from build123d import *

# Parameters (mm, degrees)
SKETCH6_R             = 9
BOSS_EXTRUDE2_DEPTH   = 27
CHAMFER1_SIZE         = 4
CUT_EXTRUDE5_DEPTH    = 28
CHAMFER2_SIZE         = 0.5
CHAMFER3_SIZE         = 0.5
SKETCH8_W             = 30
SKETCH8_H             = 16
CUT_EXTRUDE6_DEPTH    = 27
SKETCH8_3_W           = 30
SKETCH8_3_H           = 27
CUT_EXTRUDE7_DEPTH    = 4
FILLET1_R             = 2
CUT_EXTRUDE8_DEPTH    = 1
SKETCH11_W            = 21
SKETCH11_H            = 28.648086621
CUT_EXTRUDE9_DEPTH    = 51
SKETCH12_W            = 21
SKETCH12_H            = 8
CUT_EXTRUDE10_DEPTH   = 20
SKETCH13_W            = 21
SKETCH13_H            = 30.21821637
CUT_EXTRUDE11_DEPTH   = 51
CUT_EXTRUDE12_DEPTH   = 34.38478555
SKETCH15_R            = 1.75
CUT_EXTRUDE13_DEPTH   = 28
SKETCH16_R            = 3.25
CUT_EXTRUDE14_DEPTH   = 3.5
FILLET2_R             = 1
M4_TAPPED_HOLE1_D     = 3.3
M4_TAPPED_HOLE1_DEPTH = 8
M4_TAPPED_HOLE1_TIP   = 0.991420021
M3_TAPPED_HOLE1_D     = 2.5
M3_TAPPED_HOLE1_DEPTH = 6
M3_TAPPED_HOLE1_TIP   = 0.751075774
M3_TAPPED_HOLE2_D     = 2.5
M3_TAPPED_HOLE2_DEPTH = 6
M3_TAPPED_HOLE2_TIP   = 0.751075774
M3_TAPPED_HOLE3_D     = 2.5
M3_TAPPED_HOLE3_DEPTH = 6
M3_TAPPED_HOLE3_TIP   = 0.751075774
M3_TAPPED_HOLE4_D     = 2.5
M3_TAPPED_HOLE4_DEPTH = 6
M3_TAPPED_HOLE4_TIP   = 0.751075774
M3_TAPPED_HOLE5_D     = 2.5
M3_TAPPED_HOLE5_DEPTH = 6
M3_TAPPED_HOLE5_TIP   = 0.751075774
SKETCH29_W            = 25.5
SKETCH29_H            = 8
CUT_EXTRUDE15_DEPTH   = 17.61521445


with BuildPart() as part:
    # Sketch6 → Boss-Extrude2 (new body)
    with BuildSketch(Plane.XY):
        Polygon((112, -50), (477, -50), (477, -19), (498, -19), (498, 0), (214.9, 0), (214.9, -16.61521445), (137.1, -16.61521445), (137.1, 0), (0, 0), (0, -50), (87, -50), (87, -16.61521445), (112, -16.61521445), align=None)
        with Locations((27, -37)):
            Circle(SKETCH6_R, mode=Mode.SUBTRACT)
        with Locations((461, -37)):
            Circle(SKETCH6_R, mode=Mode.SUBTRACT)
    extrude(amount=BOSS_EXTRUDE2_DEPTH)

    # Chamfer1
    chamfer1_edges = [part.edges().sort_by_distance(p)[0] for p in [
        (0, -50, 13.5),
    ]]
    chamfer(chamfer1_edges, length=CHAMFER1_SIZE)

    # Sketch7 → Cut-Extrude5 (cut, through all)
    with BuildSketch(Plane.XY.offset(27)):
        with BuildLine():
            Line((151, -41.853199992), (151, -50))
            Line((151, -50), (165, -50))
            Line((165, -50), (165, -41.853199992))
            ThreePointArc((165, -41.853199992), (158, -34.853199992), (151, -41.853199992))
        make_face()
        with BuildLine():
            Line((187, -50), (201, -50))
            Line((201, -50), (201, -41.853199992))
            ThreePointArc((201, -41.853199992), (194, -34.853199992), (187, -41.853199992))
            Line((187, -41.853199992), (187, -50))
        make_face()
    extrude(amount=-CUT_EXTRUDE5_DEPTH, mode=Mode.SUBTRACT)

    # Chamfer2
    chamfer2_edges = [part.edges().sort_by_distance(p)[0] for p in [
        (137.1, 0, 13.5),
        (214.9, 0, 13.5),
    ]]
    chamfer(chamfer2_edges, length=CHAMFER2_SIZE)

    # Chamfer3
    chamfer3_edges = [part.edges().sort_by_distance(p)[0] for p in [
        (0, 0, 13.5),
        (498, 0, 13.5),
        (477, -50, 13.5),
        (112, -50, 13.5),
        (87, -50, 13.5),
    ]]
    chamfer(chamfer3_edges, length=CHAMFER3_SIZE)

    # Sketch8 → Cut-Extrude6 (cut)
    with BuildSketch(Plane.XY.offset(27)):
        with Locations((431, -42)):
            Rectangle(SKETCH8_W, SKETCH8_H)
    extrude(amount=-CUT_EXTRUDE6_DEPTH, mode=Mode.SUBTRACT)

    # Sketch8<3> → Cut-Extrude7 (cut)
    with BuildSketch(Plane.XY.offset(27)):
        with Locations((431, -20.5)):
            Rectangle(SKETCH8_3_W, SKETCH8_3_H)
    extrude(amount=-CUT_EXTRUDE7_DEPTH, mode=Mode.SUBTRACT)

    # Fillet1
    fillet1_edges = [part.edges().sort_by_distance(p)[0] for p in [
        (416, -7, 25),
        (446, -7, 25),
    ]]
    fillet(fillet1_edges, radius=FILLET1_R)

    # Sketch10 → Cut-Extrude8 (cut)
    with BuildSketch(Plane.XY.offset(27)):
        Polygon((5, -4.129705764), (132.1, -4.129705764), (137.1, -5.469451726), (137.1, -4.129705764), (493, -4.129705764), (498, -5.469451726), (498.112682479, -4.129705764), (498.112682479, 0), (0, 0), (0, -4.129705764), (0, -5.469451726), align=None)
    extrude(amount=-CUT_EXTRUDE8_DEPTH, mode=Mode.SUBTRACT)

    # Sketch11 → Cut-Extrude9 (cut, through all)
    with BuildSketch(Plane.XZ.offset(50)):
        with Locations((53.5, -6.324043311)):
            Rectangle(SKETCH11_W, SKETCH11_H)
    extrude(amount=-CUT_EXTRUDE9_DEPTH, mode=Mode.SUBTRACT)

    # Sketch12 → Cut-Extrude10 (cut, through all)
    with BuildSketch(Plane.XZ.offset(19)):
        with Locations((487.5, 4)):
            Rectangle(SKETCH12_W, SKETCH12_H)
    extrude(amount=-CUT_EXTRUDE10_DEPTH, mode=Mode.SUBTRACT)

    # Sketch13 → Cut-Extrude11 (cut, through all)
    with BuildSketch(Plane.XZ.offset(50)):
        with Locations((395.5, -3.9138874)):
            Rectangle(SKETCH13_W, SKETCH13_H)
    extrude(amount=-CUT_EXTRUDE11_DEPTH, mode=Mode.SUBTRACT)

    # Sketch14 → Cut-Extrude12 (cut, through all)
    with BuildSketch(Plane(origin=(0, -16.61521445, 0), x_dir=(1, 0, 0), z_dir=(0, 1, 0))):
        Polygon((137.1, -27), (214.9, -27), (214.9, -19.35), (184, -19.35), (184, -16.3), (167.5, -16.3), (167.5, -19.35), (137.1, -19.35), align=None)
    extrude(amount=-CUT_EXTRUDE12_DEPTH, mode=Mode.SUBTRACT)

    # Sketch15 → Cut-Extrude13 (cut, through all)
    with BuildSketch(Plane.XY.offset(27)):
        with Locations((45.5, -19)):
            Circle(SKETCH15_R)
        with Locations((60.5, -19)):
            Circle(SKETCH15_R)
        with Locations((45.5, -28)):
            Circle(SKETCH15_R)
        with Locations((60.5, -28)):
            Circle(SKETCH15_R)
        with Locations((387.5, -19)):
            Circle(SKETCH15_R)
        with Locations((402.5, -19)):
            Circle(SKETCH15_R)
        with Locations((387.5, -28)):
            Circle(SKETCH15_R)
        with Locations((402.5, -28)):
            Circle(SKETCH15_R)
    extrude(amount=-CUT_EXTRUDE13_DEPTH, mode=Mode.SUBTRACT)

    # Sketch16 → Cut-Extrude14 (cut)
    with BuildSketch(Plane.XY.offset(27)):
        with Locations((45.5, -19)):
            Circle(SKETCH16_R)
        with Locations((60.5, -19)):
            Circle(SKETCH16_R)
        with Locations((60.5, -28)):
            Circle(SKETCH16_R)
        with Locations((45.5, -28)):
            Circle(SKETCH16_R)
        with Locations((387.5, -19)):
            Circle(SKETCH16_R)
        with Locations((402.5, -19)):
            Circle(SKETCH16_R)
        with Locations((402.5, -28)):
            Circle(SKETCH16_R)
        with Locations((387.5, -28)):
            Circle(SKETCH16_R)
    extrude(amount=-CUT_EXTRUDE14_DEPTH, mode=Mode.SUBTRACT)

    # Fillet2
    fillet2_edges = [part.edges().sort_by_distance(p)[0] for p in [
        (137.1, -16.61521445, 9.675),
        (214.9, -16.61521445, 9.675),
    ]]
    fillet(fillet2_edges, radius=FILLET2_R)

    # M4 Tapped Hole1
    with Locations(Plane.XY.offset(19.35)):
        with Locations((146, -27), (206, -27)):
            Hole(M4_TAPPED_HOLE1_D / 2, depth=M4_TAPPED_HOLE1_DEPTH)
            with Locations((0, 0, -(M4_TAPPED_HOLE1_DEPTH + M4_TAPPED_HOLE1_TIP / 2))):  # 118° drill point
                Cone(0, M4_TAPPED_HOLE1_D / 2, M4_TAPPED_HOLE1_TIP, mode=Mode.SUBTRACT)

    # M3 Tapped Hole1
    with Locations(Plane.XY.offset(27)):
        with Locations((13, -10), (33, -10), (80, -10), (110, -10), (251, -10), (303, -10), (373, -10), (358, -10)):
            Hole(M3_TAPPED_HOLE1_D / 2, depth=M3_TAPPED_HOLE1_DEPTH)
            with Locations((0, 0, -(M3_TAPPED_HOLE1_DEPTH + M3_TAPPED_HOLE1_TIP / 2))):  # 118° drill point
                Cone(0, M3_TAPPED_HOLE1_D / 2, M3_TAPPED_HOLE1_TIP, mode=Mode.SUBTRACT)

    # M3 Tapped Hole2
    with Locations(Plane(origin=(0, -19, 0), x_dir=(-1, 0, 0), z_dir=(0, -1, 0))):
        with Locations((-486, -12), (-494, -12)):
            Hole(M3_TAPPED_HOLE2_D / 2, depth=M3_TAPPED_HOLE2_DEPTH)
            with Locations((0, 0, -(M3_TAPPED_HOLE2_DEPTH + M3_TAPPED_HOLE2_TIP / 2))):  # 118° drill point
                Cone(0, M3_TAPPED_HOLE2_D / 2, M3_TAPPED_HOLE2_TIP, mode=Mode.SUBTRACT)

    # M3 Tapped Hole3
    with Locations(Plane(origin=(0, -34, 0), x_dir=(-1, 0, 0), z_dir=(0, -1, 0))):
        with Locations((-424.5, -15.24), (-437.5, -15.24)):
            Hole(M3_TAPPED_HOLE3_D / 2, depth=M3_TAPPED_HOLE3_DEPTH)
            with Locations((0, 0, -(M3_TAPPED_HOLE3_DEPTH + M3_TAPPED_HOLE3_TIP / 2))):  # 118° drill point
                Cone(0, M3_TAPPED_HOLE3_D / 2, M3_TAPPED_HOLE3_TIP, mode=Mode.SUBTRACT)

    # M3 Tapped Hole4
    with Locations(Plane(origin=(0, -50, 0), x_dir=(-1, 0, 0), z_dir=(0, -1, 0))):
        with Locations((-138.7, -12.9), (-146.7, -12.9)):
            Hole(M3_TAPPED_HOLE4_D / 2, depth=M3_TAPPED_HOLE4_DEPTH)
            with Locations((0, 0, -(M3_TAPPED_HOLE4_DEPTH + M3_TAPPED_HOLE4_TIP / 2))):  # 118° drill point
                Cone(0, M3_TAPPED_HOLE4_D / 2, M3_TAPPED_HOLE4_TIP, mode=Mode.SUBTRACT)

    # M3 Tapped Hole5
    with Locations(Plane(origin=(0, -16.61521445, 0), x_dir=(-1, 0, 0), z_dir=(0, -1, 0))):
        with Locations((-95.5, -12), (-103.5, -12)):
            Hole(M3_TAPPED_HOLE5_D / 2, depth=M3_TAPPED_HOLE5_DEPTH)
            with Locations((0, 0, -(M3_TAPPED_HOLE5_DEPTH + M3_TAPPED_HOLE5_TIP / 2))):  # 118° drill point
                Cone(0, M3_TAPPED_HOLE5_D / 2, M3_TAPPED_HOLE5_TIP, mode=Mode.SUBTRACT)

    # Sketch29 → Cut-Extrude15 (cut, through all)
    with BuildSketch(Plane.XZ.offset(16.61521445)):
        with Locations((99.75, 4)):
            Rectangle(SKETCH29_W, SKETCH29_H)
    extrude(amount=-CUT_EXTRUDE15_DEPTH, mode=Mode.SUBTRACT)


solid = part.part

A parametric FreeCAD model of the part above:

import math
import FreeCAD as App
import Part
import Sketcher
from FreeCAD import Vector
Q = App.Units.Quantity


def edges_at(feature, points):
    """Names of the edges that pass closest to the given points."""
    edges = feature.Shape.Edges
    near = lambda p: min(range(len(edges)), key=lambda i: edges[i].distToShape(Part.Vertex(*p))[0])
    return sorted({f"Edge{near(p) + 1}" for p in points})


def add_polygon(sketch, points):
    """Adds a closed chain of lines whose ends are joined by coincident constraints."""
    first, n = sketch.GeometryCount, len(points)
    for a, b in zip(points, points[1:] + points[:1]):
        sketch.addGeometry(Part.LineSegment(App.Vector(*a, 0), App.Vector(*b, 0)), False)
    for i in range(n):
        sketch.addConstraint(Sketcher.Constraint("Coincident", first + i, 2, first + (i + 1) % n, 1))

doc = App.newDocument("Part")
body = doc.addObject("PartDesign::Body", "Body")

sketch1 = body.newObject("Sketcher::SketchObject", "Sketch")
sketch1.AttachmentSupport = (doc.getObject("XY_Plane"), [""])
sketch1.MapMode = "FlatFace"
add_polygon(sketch1, [(112, -50), (477, -50), (477, -19), (498, -19), (498, 0), (215, 0), (215, -17), (137, -17), (137, 0), (0, 0), (0, -50), (87, -50), (87, -17), (112, -17)])
sketch1.addGeometry(Part.Circle(Vector(27, -37, 0), Vector(0, 0, 1), 9), False)
sketch1.addGeometry(Part.Circle(Vector(461, -37, 0), Vector(0, 0, 1), 9), False)
sketch1.addConstraint(Sketcher.Constraint("Horizontal", 0))
sketch1.addConstraint(Sketcher.Constraint("Vertical", 1))
sketch1.addConstraint(Sketcher.Constraint("Horizontal", 2))
sketch1.addConstraint(Sketcher.Constraint("Vertical", 3))
sketch1.addConstraint(Sketcher.Constraint("Horizontal", 4))
sketch1.addConstraint(Sketcher.Constraint("Vertical", 5))
sketch1.addConstraint(Sketcher.Constraint("Horizontal", 6))
sketch1.addConstraint(Sketcher.Constraint("Vertical", 7))
sketch1.addConstraint(Sketcher.Constraint("Horizontal", 8))
sketch1.addConstraint(Sketcher.Constraint("Vertical", 9))
sketch1.addConstraint(Sketcher.Constraint("Horizontal", 10))
sketch1.addConstraint(Sketcher.Constraint("Vertical", 11))
sketch1.addConstraint(Sketcher.Constraint("Horizontal", 12))
sketch1.addConstraint(Sketcher.Constraint("Vertical", 13))
sketch1.addConstraint(Sketcher.Constraint("Coincident", 8, 2, -1, 1))
sketch1.addConstraint(Sketcher.Constraint("Equal", 14, 15))
sketch1.addConstraint(Sketcher.Constraint("PointOnObject", 3, 2, -1))
sketch1.addConstraint(Sketcher.Constraint("Horizontal", 14, 3, 15, 3))
sketch1.addConstraint(Sketcher.Constraint("Horizontal", 0, 2, 9, 2))
sketch1.addConstraint(Sketcher.Constraint("Horizontal", 6, 2, 11, 2))
sketch1.addConstraint(Sketcher.Constraint("Diameter", 14, Q("18 mm")))
sketch1.addConstraint(Sketcher.Constraint("DistanceX", 0, 1, 0, 2, Q("365 mm")))
sketch1.addConstraint(Sketcher.Constraint("DistanceX", 2, 1, 2, 2, Q("21 mm")))
sketch1.addConstraint(Sketcher.Constraint("DistanceX", 10, 1, 10, 2, Q("87 mm")))
sketch1.addConstraint(Sketcher.Constraint("DistanceX", 12, 1, 12, 2, Q("25 mm")))
sketch1.addConstraint(Sketcher.Constraint("DistanceY", 1, 1, 1, 2, Q("31 mm")))
sketch1.addConstraint(Sketcher.Constraint("DistanceY", 3, 1, 3, 2, Q("19 mm")))
sketch1.addConstraint(Sketcher.Constraint("DistanceX", 4, 2, 4, 1, Q("283.1 mm")))
sketch1.addConstraint(Sketcher.Constraint("DistanceX", 6, 2, 6, 1, Q("77.8 mm")))
sketch1.addConstraint(Sketcher.Constraint("DistanceX", -1, 1, 14, 3, Q("27 mm")))
sketch1.addConstraint(Sketcher.Constraint("DistanceY", 14, 3, -1, 1, Q("37 mm")))
sketch1.addConstraint(Sketcher.Constraint("DistanceX", -1, 1, 15, 3, Q("461 mm")))
sketch1.addConstraint(Sketcher.Constraint("DistanceY", 5, 2, 5, 1, Q("16.615214 mm")))
pad1 = body.newObject("PartDesign::Pad", "Pad")
pad1.Profile = sketch1
pad1.Length = 27
doc.recompute()

chamfer = body.newObject("PartDesign::Chamfer", "Chamfer")
chamfer.Base = (pad1, edges_at(pad1, [(0, -50, 13.5)]))
chamfer.Size = 4

sketch2 = body.newObject("Sketcher::SketchObject", "Sketch001")
sketch2.AttachmentSupport = (doc.getObject("XY_Plane"), [""])
sketch2.MapMode = "FlatFace"
sketch2.AttachmentOffset = App.Placement(Vector(0, 0, 27), App.Rotation())
sketch2.addGeometry(Part.LineSegment(Vector(151, -42, 0), Vector(151, -50, 0)), False)
sketch2.addGeometry(Part.LineSegment(Vector(151, -50, 0), Vector(165, -50, 0)), False)
sketch2.addGeometry(Part.LineSegment(Vector(165, -50, 0), Vector(165, -42, 0)), False)
sketch2.addGeometry(Part.ArcOfCircle(Part.Circle(Vector(158, -42, 0), Vector(0, 0, 1), 7), math.radians(0), math.radians(180)), False)
sketch2.addGeometry(Part.LineSegment(Vector(187, -50, 0), Vector(201, -50, 0)), False)
sketch2.addGeometry(Part.LineSegment(Vector(201, -50, 0), Vector(201, -42, 0)), False)
sketch2.addGeometry(Part.ArcOfCircle(Part.Circle(Vector(194, -42, 0), Vector(0, 0, 1), 7), math.radians(0), math.radians(180)), False)
sketch2.addGeometry(Part.LineSegment(Vector(187, -42, 0), Vector(187, -50, 0)), False)
sketch2.addConstraint(Sketcher.Constraint("Coincident", 0, 2, 1, 1))
sketch2.addConstraint(Sketcher.Constraint("Coincident", 1, 2, 2, 1))
sketch2.addConstraint(Sketcher.Constraint("Tangent", 2, 2, 3, 1))
sketch2.addConstraint(Sketcher.Constraint("Tangent", 3, 2, 0, 1))
sketch2.addConstraint(Sketcher.Constraint("Coincident", 4, 2, 5, 1))
sketch2.addConstraint(Sketcher.Constraint("Tangent", 5, 2, 6, 1))
sketch2.addConstraint(Sketcher.Constraint("Tangent", 6, 2, 7, 1))
sketch2.addConstraint(Sketcher.Constraint("Coincident", 7, 2, 4, 1))
sketch2.addConstraint(Sketcher.Constraint("Vertical", 0))
sketch2.addConstraint(Sketcher.Constraint("Horizontal", 1))
sketch2.addConstraint(Sketcher.Constraint("Vertical", 2))
sketch2.addConstraint(Sketcher.Constraint("Horizontal", 4))
sketch2.addConstraint(Sketcher.Constraint("Vertical", 5))
sketch2.addConstraint(Sketcher.Constraint("Vertical", 7))
sketch2.addConstraint(Sketcher.Constraint("Equal", 3, 6))
sketch2.addConstraint(Sketcher.Constraint("Horizontal", 3, 3, 6, 3))
sketch2.addConstraint(Sketcher.Constraint("Horizontal", 1, 2, 4, 2))
sketch2.addConstraint(Sketcher.Constraint("Radius", 3, Q("7 mm")))
sketch2.addConstraint(Sketcher.Constraint("DistanceX", -1, 1, 3, 3, Q("158 mm")))
sketch2.addConstraint(Sketcher.Constraint("DistanceX", -1, 1, 6, 3, Q("194 mm")))
sketch2.addConstraint(Sketcher.Constraint("DistanceY", 0, 2, -1, 1, Q("50 mm")))
sketch2.addConstraint(Sketcher.Constraint("DistanceY", 0, 2, 0, 1, Q("8.1468 mm")))
pocket1 = body.newObject("PartDesign::Pocket", "Pocket")
pocket1.Profile = sketch2
pocket1.Type = "ThroughAll"
doc.recompute()

chamfer2 = body.newObject("PartDesign::Chamfer", "Chamfer001")
chamfer2.Base = (pocket1, edges_at(pocket1, [(137.1, 0, 13.5), (214.9, 0, 13.5)]))
chamfer2.Size = 0.5
doc.recompute()

chamfer3 = body.newObject("PartDesign::Chamfer", "Chamfer002")
chamfer3.Base = (chamfer2, edges_at(chamfer2, [
    (0, 0, 13.5),
    (498, 0, 13.5),
    (477, -50, 13.5),
    (112, -50, 13.5),
    (87, -50, 13.5),
]))
chamfer3.Size = 0.5

sketch3 = body.newObject("Sketcher::SketchObject", "Sketch002")
sketch3.AttachmentSupport = (doc.getObject("XY_Plane"), [""])
sketch3.MapMode = "FlatFace"
sketch3.AttachmentOffset = App.Placement(Vector(0, 0, 27), App.Rotation())
add_polygon(sketch3, [(416, -34), (416, -50), (446, -50), (446, -34)])
sketch3.addConstraint(Sketcher.Constraint("Vertical", 0))
sketch3.addConstraint(Sketcher.Constraint("Horizontal", 1))
sketch3.addConstraint(Sketcher.Constraint("Vertical", 2))
sketch3.addConstraint(Sketcher.Constraint("Horizontal", 3))
sketch3.addConstraint(Sketcher.Constraint("DistanceX", 1, 1, 1, 2, Q("30 mm")))
sketch3.addConstraint(Sketcher.Constraint("DistanceY", 0, 2, 0, 1, Q("16 mm")))
sketch3.addConstraint(Sketcher.Constraint("DistanceX", -1, 1, 0, 2, Q("416 mm")))
sketch3.addConstraint(Sketcher.Constraint("DistanceY", 0, 2, -1, 1, Q("50 mm")))
pocket2 = body.newObject("PartDesign::Pocket", "Pocket001")
pocket2.Profile = sketch3
pocket2.Length = 27

sketch4 = body.newObject("Sketcher::SketchObject", "Sketch003")
sketch4.AttachmentSupport = (doc.getObject("XY_Plane"), [""])
sketch4.MapMode = "FlatFace"
sketch4.AttachmentOffset = App.Placement(Vector(0, 0, 27), App.Rotation())
add_polygon(sketch4, [(416, -7), (416, -34), (446, -34), (446, -7)])
sketch4.addConstraint(Sketcher.Constraint("Vertical", 0))
sketch4.addConstraint(Sketcher.Constraint("Horizontal", 1))
sketch4.addConstraint(Sketcher.Constraint("Vertical", 2))
sketch4.addConstraint(Sketcher.Constraint("Horizontal", 3))
sketch4.addConstraint(Sketcher.Constraint("DistanceX", 1, 1, 1, 2, Q("30 mm")))
sketch4.addConstraint(Sketcher.Constraint("DistanceY", 0, 2, 0, 1, Q("27 mm")))
sketch4.addConstraint(Sketcher.Constraint("DistanceX", -1, 1, 0, 2, Q("416 mm")))
sketch4.addConstraint(Sketcher.Constraint("DistanceY", 0, 2, -1, 1, Q("34 mm")))
pocket3 = body.newObject("PartDesign::Pocket", "Pocket002")
pocket3.Profile = sketch4
pocket3.Length = 4
doc.recompute()

fillet = body.newObject("PartDesign::Fillet", "Fillet")
fillet.Base = (pocket3, edges_at(pocket3, [(416, -7, 25), (446, -7, 25)]))
fillet.Radius = 2

sketch5 = body.newObject("Sketcher::SketchObject", "Sketch004")
sketch5.AttachmentSupport = (doc.getObject("XY_Plane"), [""])
sketch5.MapMode = "FlatFace"
sketch5.AttachmentOffset = App.Placement(Vector(0, 0, 27), App.Rotation())
add_polygon(sketch5, [(5, -4.1), (132.1, -4.1), (137.1, -5.5), (137.1, -4.1), (493, -4.1), (498, -5.5), (498.1, -4.1), (498.1, 0), (0, 0), (0, -5.5)])
sketch5.addConstraint(Sketcher.Constraint("Horizontal", 0))
sketch5.addConstraint(Sketcher.Constraint("Vertical", 2))
sketch5.addConstraint(Sketcher.Constraint("Horizontal", 3))
sketch5.addConstraint(Sketcher.Constraint("Vertical", 6))
sketch5.addConstraint(Sketcher.Constraint("Horizontal", 7))
sketch5.addConstraint(Sketcher.Constraint("Vertical", 8))
sketch5.addConstraint(Sketcher.Constraint("Coincident", 7, 2, -1, 1))
sketch5.addConstraint(Sketcher.Constraint("Parallel", 1, 4))
sketch5.addConstraint(Sketcher.Constraint("Horizontal", 0, 2, 2, 2))
sketch5.addConstraint(Sketcher.Constraint("Horizontal", 1, 2, 4, 2))
sketch5.addConstraint(Sketcher.Constraint("Horizontal", 3, 2, 5, 2))
sketch5.addConstraint(Sketcher.Constraint("Horizontal", 4, 2, 8, 2))
sketch5.addConstraint(Sketcher.Constraint("Equal", 4, 9))
sketch5.addConstraint(Sketcher.Constraint("Angle", 1, Q("-15 deg")))
sketch5.addConstraint(Sketcher.Constraint("DistanceX", 0, 1, 0, 2, Q("127.1 mm")))
sketch5.addConstraint(Sketcher.Constraint("DistanceX", 3, 1, 3, 2, Q("355.9 mm")))
sketch5.addConstraint(Sketcher.Constraint("DistanceX", -1, 1, 3, 2, Q("493 mm")))
sketch5.addConstraint(Sketcher.Constraint("DistanceY", 8, 2, 8, 1, Q("5.469452 mm")))
sketch5.addConstraint(Sketcher.Constraint("DistanceX", 7, 2, 7, 1, Q("498.112682 mm")))
pocket4 = body.newObject("PartDesign::Pocket", "Pocket003")
pocket4.Profile = sketch5
pocket4.Length = 1

sketch6 = body.newObject("Sketcher::SketchObject", "Sketch005")
sketch6.AttachmentSupport = (doc.getObject("XZ_Plane"), [""])
sketch6.MapMode = "FlatFace"
sketch6.AttachmentOffset = App.Placement(Vector(0, 0, 50), App.Rotation())
add_polygon(sketch6, [(43, 8), (43, -21), (64, -21), (64, 8)])
sketch6.addConstraint(Sketcher.Constraint("Vertical", 0))
sketch6.addConstraint(Sketcher.Constraint("Horizontal", 1))
sketch6.addConstraint(Sketcher.Constraint("Vertical", 2))
sketch6.addConstraint(Sketcher.Constraint("Horizontal", 3))
sketch6.addConstraint(Sketcher.Constraint("DistanceX", 1, 1, 1, 2, Q("21 mm")))
sketch6.addConstraint(Sketcher.Constraint("DistanceX", -1, 1, 0, 2, Q("43 mm")))
sketch6.addConstraint(Sketcher.Constraint("DistanceY", -1, 1, 2, 2, Q("8 mm")))
sketch6.addConstraint(Sketcher.Constraint("DistanceY", 0, 2, 0, 1, Q("28.648087 mm")))
pocket5 = body.newObject("PartDesign::Pocket", "Pocket004")
pocket5.Profile = sketch6
pocket5.Type = "ThroughAll"

sketch7 = body.newObject("Sketcher::SketchObject", "Sketch006")
sketch7.AttachmentSupport = (doc.getObject("XZ_Plane"), [""])
sketch7.MapMode = "FlatFace"
sketch7.AttachmentOffset = App.Placement(Vector(0, 0, 19), App.Rotation())
add_polygon(sketch7, [(477, 8), (477, 0), (498, 0), (498, 8)])
sketch7.addConstraint(Sketcher.Constraint("Vertical", 0))
sketch7.addConstraint(Sketcher.Constraint("Horizontal", 1))
sketch7.addConstraint(Sketcher.Constraint("Vertical", 2))
sketch7.addConstraint(Sketcher.Constraint("Horizontal", 3))
sketch7.addConstraint(Sketcher.Constraint("PointOnObject", 0, 2, -1))
sketch7.addConstraint(Sketcher.Constraint("DistanceX", 1, 1, 1, 2, Q("21 mm")))
sketch7.addConstraint(Sketcher.Constraint("DistanceY", 0, 2, 0, 1, Q("8 mm")))
sketch7.addConstraint(Sketcher.Constraint("DistanceX", -1, 1, 0, 2, Q("477 mm")))
pocket6 = body.newObject("PartDesign::Pocket", "Pocket005")
pocket6.Profile = sketch7
pocket6.Type = "ThroughAll"

sketch8 = body.newObject("Sketcher::SketchObject", "Sketch007")
sketch8.AttachmentSupport = (doc.getObject("XZ_Plane"), [""])
sketch8.MapMode = "FlatFace"
sketch8.AttachmentOffset = App.Placement(Vector(0, 0, 50), App.Rotation())
add_polygon(sketch8, [(385, 11), (385, -19), (406, -19), (406, 11)])
sketch8.addConstraint(Sketcher.Constraint("Vertical", 0))
sketch8.addConstraint(Sketcher.Constraint("Horizontal", 1))
sketch8.addConstraint(Sketcher.Constraint("Vertical", 2))
sketch8.addConstraint(Sketcher.Constraint("Horizontal", 3))
sketch8.addConstraint(Sketcher.Constraint("DistanceX", 1, 1, 1, 2, Q("21 mm")))
sketch8.addConstraint(Sketcher.Constraint("DistanceX", -1, 1, 0, 2, Q("385 mm")))
sketch8.addConstraint(Sketcher.Constraint("DistanceY", 0, 2, 0, 1, Q("30.218216 mm")))
sketch8.addConstraint(Sketcher.Constraint("DistanceY", -1, 1, 2, 2, Q("11.195221 mm")))
pocket7 = body.newObject("PartDesign::Pocket", "Pocket006")
pocket7.Profile = sketch8
pocket7.Type = "ThroughAll"

sketch9 = body.newObject("Sketcher::SketchObject", "Sketch008")
sketch9.AttachmentSupport = (doc.getObject("XZ_Plane"), [""])
sketch9.MapMode = "FlatFace"
sketch9.AttachmentOffset = App.Placement(Vector(0, 0, 16.615214), App.Rotation())
add_polygon(sketch9, [(137.1, 27), (214.9, 27), (214.9, 19.4), (184, 19.4), (184, 16.3), (167.5, 16.3), (167.5, 19.4), (137.1, 19.4)])
sketch9.addConstraint(Sketcher.Constraint("Horizontal", 0))
sketch9.addConstraint(Sketcher.Constraint("Vertical", 1))
sketch9.addConstraint(Sketcher.Constraint("Horizontal", 2))
sketch9.addConstraint(Sketcher.Constraint("Vertical", 3))
sketch9.addConstraint(Sketcher.Constraint("Horizontal", 4))
sketch9.addConstraint(Sketcher.Constraint("Vertical", 5))
sketch9.addConstraint(Sketcher.Constraint("Horizontal", 6))
sketch9.addConstraint(Sketcher.Constraint("Vertical", 7))
sketch9.addConstraint(Sketcher.Constraint("Horizontal", 2, 2, 5, 2))
sketch9.addConstraint(Sketcher.Constraint("DistanceX", 0, 1, 0, 2, Q("77.8 mm")))
sketch9.addConstraint(Sketcher.Constraint("DistanceX", 2, 2, 2, 1, Q("30.9 mm")))
sketch9.addConstraint(Sketcher.Constraint("DistanceX", 4, 2, 4, 1, Q("16.5 mm")))
sketch9.addConstraint(Sketcher.Constraint("DistanceY", -1, 1, 0, 2, Q("27 mm")))
sketch9.addConstraint(Sketcher.Constraint("DistanceX", -1, 1, 2, 2, Q("184 mm")))
sketch9.addConstraint(Sketcher.Constraint("DistanceY", 1, 2, 1, 1, Q("7.65 mm")))
sketch9.addConstraint(Sketcher.Constraint("DistanceY", 3, 2, 3, 1, Q("3.05 mm")))
pocket8 = body.newObject("PartDesign::Pocket", "Pocket007")
pocket8.Profile = sketch9
pocket8.Type = "ThroughAll"
pocket8.Reversed = True

sketch10 = body.newObject("Sketcher::SketchObject", "Sketch009")
sketch10.AttachmentSupport = (doc.getObject("XY_Plane"), [""])
sketch10.MapMode = "FlatFace"
sketch10.AttachmentOffset = App.Placement(Vector(0, 0, 27), App.Rotation())
sketch10.addGeometry(Part.Circle(Vector(45.5, -19, 0), Vector(0, 0, 1), 1.8), False)
sketch10.addGeometry(Part.Circle(Vector(60.5, -19, 0), Vector(0, 0, 1), 1.8), False)
sketch10.addGeometry(Part.Circle(Vector(45.5, -28, 0), Vector(0, 0, 1), 1.8), False)
sketch10.addGeometry(Part.Circle(Vector(60.5, -28, 0), Vector(0, 0, 1), 1.8), False)
sketch10.addGeometry(Part.Circle(Vector(387.5, -19, 0), Vector(0, 0, 1), 1.8), False)
sketch10.addGeometry(Part.Circle(Vector(402.5, -19, 0), Vector(0, 0, 1), 1.8), False)
sketch10.addGeometry(Part.Circle(Vector(387.5, -28, 0), Vector(0, 0, 1), 1.8), False)
sketch10.addGeometry(Part.Circle(Vector(402.5, -28, 0), Vector(0, 0, 1), 1.8), False)
sketch10.addConstraint(Sketcher.Constraint("Equal", 0, 1))
sketch10.addConstraint(Sketcher.Constraint("Equal", 1, 2))
sketch10.addConstraint(Sketcher.Constraint("Equal", 2, 3))
sketch10.addConstraint(Sketcher.Constraint("Equal", 3, 4))
sketch10.addConstraint(Sketcher.Constraint("Equal", 4, 5))
sketch10.addConstraint(Sketcher.Constraint("Equal", 5, 6))
sketch10.addConstraint(Sketcher.Constraint("Equal", 6, 7))
sketch10.addConstraint(Sketcher.Constraint("Horizontal", 0, 3, 1, 3))
sketch10.addConstraint(Sketcher.Constraint("Horizontal", 2, 3, 3, 3))
sketch10.addConstraint(Sketcher.Constraint("Horizontal", 1, 3, 4, 3))
sketch10.addConstraint(Sketcher.Constraint("Horizontal", 4, 3, 5, 3))
sketch10.addConstraint(Sketcher.Constraint("Horizontal", 3, 3, 6, 3))
sketch10.addConstraint(Sketcher.Constraint("Horizontal", 6, 3, 7, 3))
sketch10.addConstraint(Sketcher.Constraint("Vertical", 0, 3, 2, 3))
sketch10.addConstraint(Sketcher.Constraint("Vertical", 1, 3, 3, 3))
sketch10.addConstraint(Sketcher.Constraint("Vertical", 4, 3, 6, 3))
sketch10.addConstraint(Sketcher.Constraint("Vertical", 5, 3, 7, 3))
sketch10.addConstraint(Sketcher.Constraint("Diameter", 0, Q("3.5 mm")))
sketch10.addConstraint(Sketcher.Constraint("DistanceY", 0, 3, -1, 1, Q("19 mm")))
sketch10.addConstraint(Sketcher.Constraint("DistanceY", 2, 3, -1, 1, Q("28 mm")))
sketch10.addConstraint(Sketcher.Constraint("DistanceX", 0, 3, 1, 3, Q("15 mm")))
sketch10.addConstraint(Sketcher.Constraint("DistanceX", 1, 3, 4, 3, Q("327 mm")))
sketch10.addConstraint(Sketcher.Constraint("DistanceX", 4, 3, 5, 3, Q("15 mm")))
sketch10.addConstraint(Sketcher.Constraint("DistanceX", -1, 1, 0, 3, Q("45.5 mm")))
pocket9 = body.newObject("PartDesign::Pocket", "Pocket008")
pocket9.Profile = sketch10
pocket9.Type = "ThroughAll"

sketch11 = body.newObject("Sketcher::SketchObject", "Sketch010")
sketch11.AttachmentSupport = (doc.getObject("XY_Plane"), [""])
sketch11.MapMode = "FlatFace"
sketch11.AttachmentOffset = App.Placement(Vector(0, 0, 27), App.Rotation())
sketch11.addGeometry(Part.Circle(Vector(45.5, -19, 0), Vector(0, 0, 1), 3.2), False)
sketch11.addGeometry(Part.Circle(Vector(60.5, -19, 0), Vector(0, 0, 1), 3.2), False)
sketch11.addGeometry(Part.Circle(Vector(60.5, -28, 0), Vector(0, 0, 1), 3.2), False)
sketch11.addGeometry(Part.Circle(Vector(45.5, -28, 0), Vector(0, 0, 1), 3.2), False)
sketch11.addGeometry(Part.Circle(Vector(387.5, -19, 0), Vector(0, 0, 1), 3.2), False)
sketch11.addGeometry(Part.Circle(Vector(402.5, -19, 0), Vector(0, 0, 1), 3.2), False)
sketch11.addGeometry(Part.Circle(Vector(402.5, -28, 0), Vector(0, 0, 1), 3.2), False)
sketch11.addGeometry(Part.Circle(Vector(387.5, -28, 0), Vector(0, 0, 1), 3.2), False)
sketch11.addConstraint(Sketcher.Constraint("Equal", 0, 1))
sketch11.addConstraint(Sketcher.Constraint("Equal", 1, 2))
sketch11.addConstraint(Sketcher.Constraint("Equal", 2, 3))
sketch11.addConstraint(Sketcher.Constraint("Equal", 3, 4))
sketch11.addConstraint(Sketcher.Constraint("Equal", 4, 5))
sketch11.addConstraint(Sketcher.Constraint("Equal", 5, 6))
sketch11.addConstraint(Sketcher.Constraint("Equal", 6, 7))
sketch11.addConstraint(Sketcher.Constraint("Horizontal", 0, 3, 1, 3))
sketch11.addConstraint(Sketcher.Constraint("Horizontal", 2, 3, 3, 3))
sketch11.addConstraint(Sketcher.Constraint("Horizontal", 1, 3, 4, 3))
sketch11.addConstraint(Sketcher.Constraint("Horizontal", 4, 3, 5, 3))
sketch11.addConstraint(Sketcher.Constraint("Horizontal", 3, 3, 6, 3))
sketch11.addConstraint(Sketcher.Constraint("Horizontal", 6, 3, 7, 3))
sketch11.addConstraint(Sketcher.Constraint("Vertical", 1, 3, 2, 3))
sketch11.addConstraint(Sketcher.Constraint("Vertical", 0, 3, 3, 3))
sketch11.addConstraint(Sketcher.Constraint("Vertical", 5, 3, 6, 3))
sketch11.addConstraint(Sketcher.Constraint("Vertical", 4, 3, 7, 3))
sketch11.addConstraint(Sketcher.Constraint("Diameter", 0, Q("6.5 mm")))
sketch11.addConstraint(Sketcher.Constraint("DistanceY", 0, 3, -1, 1, Q("19 mm")))
sketch11.addConstraint(Sketcher.Constraint("DistanceY", 2, 3, -1, 1, Q("28 mm")))
sketch11.addConstraint(Sketcher.Constraint("DistanceX", 0, 3, 1, 3, Q("15 mm")))
sketch11.addConstraint(Sketcher.Constraint("DistanceX", 1, 3, 4, 3, Q("327 mm")))
sketch11.addConstraint(Sketcher.Constraint("DistanceX", 4, 3, 5, 3, Q("15 mm")))
sketch11.addConstraint(Sketcher.Constraint("DistanceX", -1, 1, 0, 3, Q("45.5 mm")))
pocket10 = body.newObject("PartDesign::Pocket", "Pocket009")
pocket10.Profile = sketch11
pocket10.Length = 3.5
doc.recompute()

fillet2 = body.newObject("PartDesign::Fillet", "Fillet001")
fillet2.Base = (pocket10, edges_at(pocket10, [(137.1, -16.615, 9.675), (214.9, -16.615, 9.675)]))
fillet2.Radius = 1

sketch12 = body.newObject("Sketcher::SketchObject", "Sketch011")
sketch12.AttachmentSupport = (doc.getObject("XY_Plane"), [""])
sketch12.MapMode = "FlatFace"
sketch12.AttachmentOffset = App.Placement(Vector(0, 0, 19.35), App.Rotation())
sketch12.addGeometry(Part.Circle(Vector(146, -27, 0), Vector(0, 0, 1), 1.6), False)
sketch12.addGeometry(Part.Circle(Vector(206, -27, 0), Vector(0, 0, 1), 1.6), False)
sketch12.addConstraint(Sketcher.Constraint("Equal", 0, 1))
sketch12.addConstraint(Sketcher.Constraint("Horizontal", 0, 3, 1, 3))
sketch12.addConstraint(Sketcher.Constraint("Diameter", 0, Q("3.3 mm")))
sketch12.addConstraint(Sketcher.Constraint("DistanceX", -1, 1, 0, 3, Q("146 mm")))
sketch12.addConstraint(Sketcher.Constraint("DistanceY", 0, 3, -1, 1, Q("27 mm")))
sketch12.addConstraint(Sketcher.Constraint("DistanceX", -1, 1, 1, 3, Q("206 mm")))
doc.recompute()
hole = body.newObject("PartDesign::Hole", "Hole")
hole.Profile = sketch12
hole.ThreadType = "None"
hole.Diameter = 3.3
hole.DepthType = "Dimension"
hole.Depth = 8
hole.DrillPoint = "Angled"
hole.DrillPointAngle = 118

sketch13 = body.newObject("Sketcher::SketchObject", "Sketch012")
sketch13.AttachmentSupport = (doc.getObject("XY_Plane"), [""])
sketch13.MapMode = "FlatFace"
sketch13.AttachmentOffset = App.Placement(Vector(0, 0, 27), App.Rotation())
sketch13.addGeometry(Part.Circle(Vector(13, -10, 0), Vector(0, 0, 1), 1.2), False)
sketch13.addGeometry(Part.Circle(Vector(33, -10, 0), Vector(0, 0, 1), 1.2), False)
sketch13.addGeometry(Part.Circle(Vector(80, -10, 0), Vector(0, 0, 1), 1.2), False)
sketch13.addGeometry(Part.Circle(Vector(110, -10, 0), Vector(0, 0, 1), 1.2), False)
sketch13.addGeometry(Part.Circle(Vector(251, -10, 0), Vector(0, 0, 1), 1.2), False)
sketch13.addGeometry(Part.Circle(Vector(303, -10, 0), Vector(0, 0, 1), 1.2), False)
sketch13.addGeometry(Part.Circle(Vector(373, -10, 0), Vector(0, 0, 1), 1.2), False)
sketch13.addGeometry(Part.Circle(Vector(358, -10, 0), Vector(0, 0, 1), 1.2), False)
sketch13.addConstraint(Sketcher.Constraint("Equal", 0, 1))
sketch13.addConstraint(Sketcher.Constraint("Equal", 1, 2))
sketch13.addConstraint(Sketcher.Constraint("Equal", 2, 3))
sketch13.addConstraint(Sketcher.Constraint("Equal", 3, 4))
sketch13.addConstraint(Sketcher.Constraint("Equal", 4, 5))
sketch13.addConstraint(Sketcher.Constraint("Equal", 5, 6))
sketch13.addConstraint(Sketcher.Constraint("Equal", 6, 7))
sketch13.addConstraint(Sketcher.Constraint("Horizontal", 0, 3, 1, 3))
sketch13.addConstraint(Sketcher.Constraint("Horizontal", 1, 3, 2, 3))
sketch13.addConstraint(Sketcher.Constraint("Horizontal", 2, 3, 3, 3))
sketch13.addConstraint(Sketcher.Constraint("Horizontal", 3, 3, 4, 3))
sketch13.addConstraint(Sketcher.Constraint("Horizontal", 4, 3, 5, 3))
sketch13.addConstraint(Sketcher.Constraint("Horizontal", 5, 3, 6, 3))
sketch13.addConstraint(Sketcher.Constraint("Horizontal", 6, 3, 7, 3))
sketch13.addConstraint(Sketcher.Constraint("Diameter", 0, Q("2.5 mm")))
sketch13.addConstraint(Sketcher.Constraint("DistanceX", -1, 1, 0, 3, Q("13 mm")))
sketch13.addConstraint(Sketcher.Constraint("DistanceY", 0, 3, -1, 1, Q("10 mm")))
sketch13.addConstraint(Sketcher.Constraint("DistanceX", -1, 1, 1, 3, Q("33 mm")))
sketch13.addConstraint(Sketcher.Constraint("DistanceX", -1, 1, 2, 3, Q("80 mm")))
sketch13.addConstraint(Sketcher.Constraint("DistanceX", -1, 1, 3, 3, Q("110 mm")))
sketch13.addConstraint(Sketcher.Constraint("DistanceX", -1, 1, 4, 3, Q("251 mm")))
sketch13.addConstraint(Sketcher.Constraint("DistanceX", -1, 1, 5, 3, Q("303 mm")))
sketch13.addConstraint(Sketcher.Constraint("DistanceX", -1, 1, 6, 3, Q("373 mm")))
sketch13.addConstraint(Sketcher.Constraint("DistanceX", -1, 1, 7, 3, Q("358 mm")))
doc.recompute()
hole2 = body.newObject("PartDesign::Hole", "Hole001")
hole2.Profile = sketch13
hole2.ThreadType = "None"
hole2.Diameter = 2.5
hole2.DepthType = "Dimension"
hole2.Depth = 6
hole2.DrillPoint = "Angled"
hole2.DrillPointAngle = 118

sketch14 = body.newObject("Sketcher::SketchObject", "Sketch013")
sketch14.AttachmentSupport = (doc.getObject("XZ_Plane"), [""])
sketch14.MapMode = "FlatFace"
sketch14.AttachmentOffset = App.Placement(Vector(0, 0, 19), App.Rotation())
sketch14.addGeometry(Part.Circle(Vector(486, 12, 0), Vector(0, 0, 1), 1.2), False)
sketch14.addGeometry(Part.Circle(Vector(494, 12, 0), Vector(0, 0, 1), 1.2), False)
sketch14.addConstraint(Sketcher.Constraint("Equal", 0, 1))
sketch14.addConstraint(Sketcher.Constraint("Horizontal", 0, 3, 1, 3))
sketch14.addConstraint(Sketcher.Constraint("Diameter", 0, Q("2.5 mm")))
sketch14.addConstraint(Sketcher.Constraint("DistanceX", -1, 1, 0, 3, Q("486 mm")))
sketch14.addConstraint(Sketcher.Constraint("DistanceY", -1, 1, 0, 3, Q("12 mm")))
sketch14.addConstraint(Sketcher.Constraint("DistanceX", -1, 1, 1, 3, Q("494 mm")))
doc.recompute()
hole3 = body.newObject("PartDesign::Hole", "Hole002")
hole3.Profile = sketch14
hole3.ThreadType = "None"
hole3.Diameter = 2.5
hole3.DepthType = "Dimension"
hole3.Depth = 6
hole3.DrillPoint = "Angled"
hole3.DrillPointAngle = 118

sketch15 = body.newObject("Sketcher::SketchObject", "Sketch014")
sketch15.AttachmentSupport = (doc.getObject("XZ_Plane"), [""])
sketch15.MapMode = "FlatFace"
sketch15.AttachmentOffset = App.Placement(Vector(0, 0, 34), App.Rotation())
sketch15.addGeometry(Part.Circle(Vector(424.5, 15.2, 0), Vector(0, 0, 1), 1.2), False)
sketch15.addGeometry(Part.Circle(Vector(437.5, 15.2, 0), Vector(0, 0, 1), 1.2), False)
sketch15.addConstraint(Sketcher.Constraint("Equal", 0, 1))
sketch15.addConstraint(Sketcher.Constraint("Horizontal", 0, 3, 1, 3))
sketch15.addConstraint(Sketcher.Constraint("Diameter", 0, Q("2.5 mm")))
sketch15.addConstraint(Sketcher.Constraint("DistanceX", 0, 3, 1, 3, Q("13 mm")))
sketch15.addConstraint(Sketcher.Constraint("DistanceX", -1, 1, 0, 3, Q("424.5 mm")))
sketch15.addConstraint(Sketcher.Constraint("DistanceY", -1, 1, 0, 3, Q("15.24 mm")))
doc.recompute()
hole4 = body.newObject("PartDesign::Hole", "Hole003")
hole4.Profile = sketch15
hole4.ThreadType = "None"
hole4.Diameter = 2.5
hole4.DepthType = "Dimension"
hole4.Depth = 6
hole4.DrillPoint = "Angled"
hole4.DrillPointAngle = 118

sketch16 = body.newObject("Sketcher::SketchObject", "Sketch015")
sketch16.AttachmentSupport = (doc.getObject("XZ_Plane"), [""])
sketch16.MapMode = "FlatFace"
sketch16.AttachmentOffset = App.Placement(Vector(0, 0, 50), App.Rotation())
sketch16.addGeometry(Part.Circle(Vector(138.7, 12.9, 0), Vector(0, 0, 1), 1.2), False)
sketch16.addGeometry(Part.Circle(Vector(146.7, 12.9, 0), Vector(0, 0, 1), 1.2), False)
sketch16.addConstraint(Sketcher.Constraint("Equal", 0, 1))
sketch16.addConstraint(Sketcher.Constraint("Horizontal", 0, 3, 1, 3))
sketch16.addConstraint(Sketcher.Constraint("Diameter", 0, Q("2.5 mm")))
sketch16.addConstraint(Sketcher.Constraint("DistanceX", 0, 3, 1, 3, Q("8 mm")))
sketch16.addConstraint(Sketcher.Constraint("DistanceX", -1, 1, 0, 3, Q("138.7 mm")))
sketch16.addConstraint(Sketcher.Constraint("DistanceY", -1, 1, 0, 3, Q("12.9 mm")))
doc.recompute()
hole5 = body.newObject("PartDesign::Hole", "Hole004")
hole5.Profile = sketch16
hole5.ThreadType = "None"
hole5.Diameter = 2.5
hole5.DepthType = "Dimension"
hole5.Depth = 6
hole5.DrillPoint = "Angled"
hole5.DrillPointAngle = 118

sketch17 = body.newObject("Sketcher::SketchObject", "Sketch016")
sketch17.AttachmentSupport = (doc.getObject("XZ_Plane"), [""])
sketch17.MapMode = "FlatFace"
sketch17.AttachmentOffset = App.Placement(Vector(0, 0, 16.615214), App.Rotation())
sketch17.addGeometry(Part.Circle(Vector(95.5, 12, 0), Vector(0, 0, 1), 1.2), False)
sketch17.addGeometry(Part.Circle(Vector(103.5, 12, 0), Vector(0, 0, 1), 1.2), False)
sketch17.addConstraint(Sketcher.Constraint("Equal", 0, 1))
sketch17.addConstraint(Sketcher.Constraint("Horizontal", 0, 3, 1, 3))
sketch17.addConstraint(Sketcher.Constraint("Diameter", 0, Q("2.5 mm")))
sketch17.addConstraint(Sketcher.Constraint("DistanceY", -1, 1, 0, 3, Q("12 mm")))
sketch17.addConstraint(Sketcher.Constraint("DistanceX", 0, 3, 1, 3, Q("8 mm")))
sketch17.addConstraint(Sketcher.Constraint("DistanceX", -1, 1, 0, 3, Q("95.5 mm")))
doc.recompute()
hole6 = body.newObject("PartDesign::Hole", "Hole005")
hole6.Profile = sketch17
hole6.ThreadType = "None"
hole6.Diameter = 2.5
hole6.DepthType = "Dimension"
hole6.Depth = 6
hole6.DrillPoint = "Angled"
hole6.DrillPointAngle = 118

sketch18 = body.newObject("Sketcher::SketchObject", "Sketch017")
sketch18.AttachmentSupport = (doc.getObject("XZ_Plane"), [""])
sketch18.MapMode = "FlatFace"
sketch18.AttachmentOffset = App.Placement(Vector(0, 0, 16.615214), App.Rotation())
add_polygon(sketch18, [(87, 8), (87, 0), (112, 0), (112, 8)])
sketch18.addConstraint(Sketcher.Constraint("Vertical", 0))
sketch18.addConstraint(Sketcher.Constraint("Horizontal", 1))
sketch18.addConstraint(Sketcher.Constraint("Vertical", 2))
sketch18.addConstraint(Sketcher.Constraint("Horizontal", 3))
sketch18.addConstraint(Sketcher.Constraint("PointOnObject", 0, 2, -1))
sketch18.addConstraint(Sketcher.Constraint("DistanceY", 0, 2, 0, 1, Q("8 mm")))
sketch18.addConstraint(Sketcher.Constraint("DistanceX", 1, 1, 1, 2, Q("25.5 mm")))
sketch18.addConstraint(Sketcher.Constraint("DistanceX", -1, 1, 0, 2, Q("87 mm")))
pocket11 = body.newObject("PartDesign::Pocket", "Pocket010")
pocket11.Profile = sketch18
pocket11.Type = "ThroughAll"

doc.recompute()
